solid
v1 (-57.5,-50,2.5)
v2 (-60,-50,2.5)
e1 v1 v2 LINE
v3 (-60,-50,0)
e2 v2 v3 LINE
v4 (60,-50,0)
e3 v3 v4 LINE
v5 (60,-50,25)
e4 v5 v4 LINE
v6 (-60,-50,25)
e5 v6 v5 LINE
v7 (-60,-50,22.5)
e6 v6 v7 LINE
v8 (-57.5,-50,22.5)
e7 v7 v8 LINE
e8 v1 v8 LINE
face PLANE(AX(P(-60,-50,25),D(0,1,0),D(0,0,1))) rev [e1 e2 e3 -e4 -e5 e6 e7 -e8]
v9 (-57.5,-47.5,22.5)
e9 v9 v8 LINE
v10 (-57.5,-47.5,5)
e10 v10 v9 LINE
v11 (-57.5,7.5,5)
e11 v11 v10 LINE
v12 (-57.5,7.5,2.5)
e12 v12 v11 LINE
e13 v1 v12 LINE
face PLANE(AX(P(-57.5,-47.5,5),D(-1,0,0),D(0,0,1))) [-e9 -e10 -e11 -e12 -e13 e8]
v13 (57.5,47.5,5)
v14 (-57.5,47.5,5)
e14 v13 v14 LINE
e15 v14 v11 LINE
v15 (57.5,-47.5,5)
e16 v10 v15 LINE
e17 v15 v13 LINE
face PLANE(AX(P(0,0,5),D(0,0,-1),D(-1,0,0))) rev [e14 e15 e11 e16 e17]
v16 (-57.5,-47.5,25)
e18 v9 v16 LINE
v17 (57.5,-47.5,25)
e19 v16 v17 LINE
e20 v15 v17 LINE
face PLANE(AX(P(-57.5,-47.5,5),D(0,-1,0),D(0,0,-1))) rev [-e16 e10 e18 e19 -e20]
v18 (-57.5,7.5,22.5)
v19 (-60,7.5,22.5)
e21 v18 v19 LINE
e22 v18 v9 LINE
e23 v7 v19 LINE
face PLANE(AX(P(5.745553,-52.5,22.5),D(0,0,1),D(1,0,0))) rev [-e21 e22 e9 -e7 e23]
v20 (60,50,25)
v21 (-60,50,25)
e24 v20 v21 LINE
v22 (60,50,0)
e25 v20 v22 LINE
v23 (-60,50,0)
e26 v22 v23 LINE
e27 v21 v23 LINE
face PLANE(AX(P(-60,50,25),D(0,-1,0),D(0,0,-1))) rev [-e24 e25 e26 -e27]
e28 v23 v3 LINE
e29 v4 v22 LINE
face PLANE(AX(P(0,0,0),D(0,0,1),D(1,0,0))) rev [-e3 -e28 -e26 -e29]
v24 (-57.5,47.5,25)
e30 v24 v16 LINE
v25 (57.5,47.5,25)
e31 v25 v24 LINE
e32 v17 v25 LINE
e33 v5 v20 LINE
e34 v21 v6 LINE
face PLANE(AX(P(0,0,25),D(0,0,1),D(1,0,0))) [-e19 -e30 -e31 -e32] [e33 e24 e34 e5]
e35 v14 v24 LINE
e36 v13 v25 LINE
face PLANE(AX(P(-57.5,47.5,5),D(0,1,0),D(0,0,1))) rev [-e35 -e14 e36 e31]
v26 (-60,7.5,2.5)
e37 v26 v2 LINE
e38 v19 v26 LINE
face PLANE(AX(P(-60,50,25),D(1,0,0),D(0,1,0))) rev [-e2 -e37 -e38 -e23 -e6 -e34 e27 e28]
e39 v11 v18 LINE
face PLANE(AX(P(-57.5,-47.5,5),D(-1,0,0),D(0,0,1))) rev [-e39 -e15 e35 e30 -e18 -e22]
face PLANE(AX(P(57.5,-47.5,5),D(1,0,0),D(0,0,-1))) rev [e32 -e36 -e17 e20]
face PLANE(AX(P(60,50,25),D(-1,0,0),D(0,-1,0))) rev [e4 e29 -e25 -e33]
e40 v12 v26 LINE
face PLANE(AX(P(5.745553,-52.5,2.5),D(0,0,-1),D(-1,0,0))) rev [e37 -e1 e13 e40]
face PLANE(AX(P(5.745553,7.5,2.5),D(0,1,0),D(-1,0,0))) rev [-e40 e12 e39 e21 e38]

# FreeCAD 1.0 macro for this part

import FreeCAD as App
import Part
import Sketcher

V = App.Vector

doc = App.newDocument("Part")
params = doc.addObject("Spreadsheet::Sheet", "Params")
for row, (alias, value) in enumerate([
    ("sketch1_width", "120 mm"),
    ("sketch1_height", "100 mm"),
    ("pad1_length", "25 mm"),
    ("sketch2_width", "115 mm"),
    ("sketch2_height", "95 mm"),
    ("pocket1_length", "20 mm"),
    ("sketch3_width", "60 mm"),
    ("sketch3_height", "20 mm"),
    ("pocket2_length", "2.5 mm"),
], start=1):
    params.set(f"A{row}", alias)
    params.set(f"B{row}", "=" + value)
    params.setAlias(f"B{row}", alias)

body = doc.addObject("PartDesign::Body", "Body")

# Sketch on XY plane
sketch1 = doc.addObject("Sketcher::SketchObject", "Sketch")
body.addObject(sketch1)
sketch1.AttachmentSupport = (doc.XY_Plane, [""])
sketch1.MapMode = "FlatFace"
sketch1.addGeometry([
    Part.LineSegment(V(-60, 50, 0), V(-60, -50, 0)),
    Part.LineSegment(V(-60, -50, 0), V(60, -50, 0)),
    Part.LineSegment(V(60, -50, 0), V(60, 50, 0)),
    Part.LineSegment(V(60, 50, 0), V(-60, 50, 0)),
], False)
sketch1.addConstraint([
    Sketcher.Constraint("Coincident", 0, 2, 1, 1),
    Sketcher.Constraint("Coincident", 1, 2, 2, 1),
    Sketcher.Constraint("Coincident", 2, 2, 3, 1),
    Sketcher.Constraint("Coincident", 3, 2, 0, 1),
    Sketcher.Constraint("Vertical", 0),
    Sketcher.Constraint("Horizontal", 1),
    Sketcher.Constraint("Vertical", 2),
    Sketcher.Constraint("Horizontal", 3),
    Sketcher.Constraint("Symmetric", 0, 2, 2, 2, -1, 1),
    Sketcher.Constraint("DistanceX", 1, 1, 1, 2, 120.0),
    Sketcher.Constraint("DistanceY", 0, 2, 0, 1, 100.0),
])
sketch1.setExpression("Constraints[9]", "Params.sketch1_width")
sketch1.setExpression("Constraints[10]", "Params.sketch1_height")
pad1 = doc.addObject("PartDesign::Pad", "Pad")
body.addObject(pad1)
pad1.Profile = sketch1
pad1.setExpression("Length", "Params.pad1_length")

# Sketch on XY plane
sketch2 = doc.addObject("Sketcher::SketchObject", "Sketch001")
body.addObject(sketch2)
sketch2.AttachmentSupport = (doc.XY_Plane, [""])
sketch2.MapMode = "FlatFace"
sketch2.AttachmentOffset = App.Placement(V(0, 0, 25), App.Rotation())
sketch2.addGeometry([
    Part.LineSegment(V(-57.5, 47.5, 0), V(-57.5, -47.5, 0)),
    Part.LineSegment(V(-57.5, -47.5, 0), V(57.5, -47.5, 0)),
    Part.LineSegment(V(57.5, -47.5, 0), V(57.5, 47.5, 0)),
    Part.LineSegment(V(57.5, 47.5, 0), V(-57.5, 47.5, 0)),
], False)
sketch2.addConstraint([
    Sketcher.Constraint("Coincident", 0, 2, 1, 1),
    Sketcher.Constraint("Coincident", 1, 2, 2, 1),
    Sketcher.Constraint("Coincident", 2, 2, 3, 1),
    Sketcher.Constraint("Coincident", 3, 2, 0, 1),
    Sketcher.Constraint("Vertical", 0),
    Sketcher.Constraint("Horizontal", 1),
    Sketcher.Constraint("Vertical", 2),
    Sketcher.Constraint("Horizontal", 3),
    Sketcher.Constraint("Symmetric", 0, 2, 2, 2, -1, 1),
    Sketcher.Constraint("DistanceX", 1, 1, 1, 2, 115.0),
    Sketcher.Constraint("DistanceY", 0, 2, 0, 1, 95.0),
])
sketch2.setExpression("Constraints[9]", "Params.sketch2_width")
sketch2.setExpression("Constraints[10]", "Params.sketch2_height")
pocket1 = doc.addObject("PartDesign::Pocket", "Pocket")
body.addObject(pocket1)
pocket1.Profile = sketch2
pocket1.setExpression("Length", "Params.pocket1_length")

# Sketch on YZ plane
sketch3 = doc.addObject("Sketcher::SketchObject", "Sketch002")
body.addObject(sketch3)
sketch3.AttachmentSupport = (doc.YZ_Plane, [""])
sketch3.MapMode = "FlatFace"
sketch3.AttachmentOffset = App.Placement(V(0, 0, -60), App.Rotation())
sketch3.addGeometry([
    Part.LineSegment(V(7.5, 2.5, 0), V(-52.5, 2.5, 0)),
    Part.LineSegment(V(-52.5, 2.5, 0), V(-52.5, 22.5, 0)),
    Part.LineSegment(V(-52.5, 22.5, 0), V(7.5, 22.5, 0)),
    Part.LineSegment(V(7.5, 22.5, 0), V(7.5, 2.5, 0)),
], False)
sketch3.addConstraint([
    Sketcher.Constraint("Coincident", 0, 2, 1, 1),
    Sketcher.Constraint("Coincident", 1, 2, 2, 1),
    Sketcher.Constraint("Coincident", 2, 2, 3, 1),
    Sketcher.Constraint("Coincident", 3, 2, 0, 1),
    Sketcher.Constraint("Horizontal", 0),
    Sketcher.Constraint("Vertical", 1),
    Sketcher.Constraint("Horizontal", 2),
    Sketcher.Constraint("Vertical", 3),
    Sketcher.Constraint("DistanceX", 0, 2, 0, 1, 60.0),
    Sketcher.Constraint("DistanceY", 1, 1, 1, 2, 20.0),
    Sketcher.Constraint("DistanceX", 0, 2, -1, 1, 52.5),
    Sketcher.Constraint("DistanceY", -1, 1, 0, 2, 2.5),
])
sketch3.setExpression("Constraints[8]", "Params.sketch3_width")
sketch3.setExpression("Constraints[9]", "Params.sketch3_height")
pocket2 = doc.addObject("PartDesign::Pocket", "Pocket001")
body.addObject(pocket2)
pocket2.Profile = sketch3
pocket2.setExpression("Length", "Params.pocket2_length")
pocket2.Reversed = True

doc.recompute()
